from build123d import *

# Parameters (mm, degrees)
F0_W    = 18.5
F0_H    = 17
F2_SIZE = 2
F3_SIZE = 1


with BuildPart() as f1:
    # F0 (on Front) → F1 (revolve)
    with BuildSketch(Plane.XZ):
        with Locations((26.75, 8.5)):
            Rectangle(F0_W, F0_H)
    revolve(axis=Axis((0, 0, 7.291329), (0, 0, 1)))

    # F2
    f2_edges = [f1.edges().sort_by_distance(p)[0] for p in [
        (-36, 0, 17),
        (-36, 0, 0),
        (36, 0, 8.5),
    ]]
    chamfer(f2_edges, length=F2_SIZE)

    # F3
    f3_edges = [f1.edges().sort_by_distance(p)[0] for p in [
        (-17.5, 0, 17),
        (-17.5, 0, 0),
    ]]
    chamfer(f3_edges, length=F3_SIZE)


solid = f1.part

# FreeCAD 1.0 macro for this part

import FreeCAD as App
import Part
import Sketcher


def edges_at(feature, points):
    """Names of the edges that pass closest to the given points."""
    edges = feature.Shape.Edges
    near = lambda p: min(range(len(edges)), key=lambda i: edges[i].distToShape(Part.Vertex(*p))[0])
    return sorted({f"Edge{near(p) + 1}" for p in points})


def add_polygon(sketch, points):
    """Adds a closed chain of lines whose ends are joined by coincident constraints."""
    first, n = sketch.GeometryCount, len(points)
    for a, b in zip(points, points[1:] + points[:1]):
        sketch.addGeometry(Part.LineSegment(App.Vector(*a, 0), App.Vector(*b, 0)), False)
    for i in range(n):
        sketch.addConstraint(Sketcher.Constraint("Coincident", first + i, 2, first + (i + 1) % n, 1))

doc = App.newDocument("Part")
body = doc.addObject("PartDesign::Body", "Body")

# Sketch on XZ plane
sketch1 = body.newObject("Sketcher::SketchObject", "Sketch")
sketch1.AttachmentSupport = (doc.getObject("XZ_Plane"), [""])
sketch1.MapMode = "FlatFace"
add_polygon(sketch1, [(18, 17), (18, 0), (36, 0), (36, 17)])  # lines 0-3
sketch1.addConstraint([
    Sketcher.Constraint("Vertical", 0),
    Sketcher.Constraint("Horizontal", 1),
    Sketcher.Constraint("Vertical", 2),
    Sketcher.Constraint("Horizontal", 3),
    Sketcher.Constraint("PointOnObject", 0, 2, -1),
    Sketcher.Constraint("DistanceY", 0, 2, 0, 1, 17.0),
    Sketcher.Constraint("DistanceX", 1, 1, 1, 2, 18.5),
    Sketcher.Constraint("DistanceX", -1, 1, 1, 2, 36.0),
])
revolution = body.newObject("PartDesign::Revolution", "Revolution")
revolution.Profile = sketch1
revolution.ReferenceAxis = (sketch1, ["V_Axis"])
revolution.Angle = 360
doc.recompute()

chamfer = body.newObject("PartDesign::Chamfer", "Chamfer")
chamfer.Base = (revolution, edges_at(revolution, [(-36, 0, 17), (-36, 0, 0), (36, 0, 8.5)]))
chamfer.Size = 2
doc.recompute()

chamfer2 = body.newObject("PartDesign::Chamfer", "Chamfer001")
chamfer2.Base = (chamfer, edges_at(chamfer, [(-17.5, 0, 17), (-17.5, 0, 0)]))
chamfer2.Size = 1

doc.recompute()
